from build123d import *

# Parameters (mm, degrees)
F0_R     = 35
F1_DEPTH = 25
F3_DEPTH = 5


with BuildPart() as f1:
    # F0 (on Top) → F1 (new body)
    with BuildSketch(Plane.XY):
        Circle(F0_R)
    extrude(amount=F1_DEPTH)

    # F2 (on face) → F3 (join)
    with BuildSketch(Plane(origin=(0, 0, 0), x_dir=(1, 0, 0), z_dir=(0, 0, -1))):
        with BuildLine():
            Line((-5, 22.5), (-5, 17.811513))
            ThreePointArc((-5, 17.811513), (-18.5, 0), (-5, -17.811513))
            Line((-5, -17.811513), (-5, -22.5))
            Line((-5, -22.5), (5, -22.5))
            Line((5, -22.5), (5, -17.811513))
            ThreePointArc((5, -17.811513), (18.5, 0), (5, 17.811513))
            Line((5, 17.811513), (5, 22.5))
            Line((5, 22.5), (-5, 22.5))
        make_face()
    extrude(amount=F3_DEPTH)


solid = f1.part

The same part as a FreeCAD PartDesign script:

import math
import FreeCAD as App
import Part
import Sketcher

doc = App.newDocument("Part")
body = doc.addObject("PartDesign::Body", "Body")

# Sketch on XY plane
sketch1 = body.newObject("Sketcher::SketchObject", "Sketch")
sketch1.AttachmentSupport = (doc.getObject("XY_Plane"), [""])
sketch1.MapMode = "FlatFace"
sketch1.addGeometry(Part.Circle(App.Vector(0, 0, 0), App.Vector(0, 0, 1), 35), False)
sketch1.addConstraint(Sketcher.Constraint("Coincident", 0, 3, -1, 1))
sketch1.addConstraint(Sketcher.Constraint("Diameter", 0, 70.0))
pad1 = body.newObject("PartDesign::Pad", "Pad")
pad1.Profile = sketch1
pad1.Length = 25

# Sketch on XY plane
sketch2 = body.newObject("Sketcher::SketchObject", "Sketch001")
sketch2.AttachmentSupport = (doc.getObject("XY_Plane"), [""])
sketch2.MapMode = "FlatFace"
sketch2.addGeometry(Part.LineSegment(App.Vector(-5, -22.5, 0), App.Vector(-5, -17.811513, 0)), False)
sketch2.addGeometry(Part.ArcOfCircle(Part.Circle(App.Vector(0, 0, 0), App.Vector(0, 0, 1), 18.5), math.radians(105.68035), math.radians(254.31965)), False)
sketch2.addGeometry(Part.LineSegment(App.Vector(-5, 17.811513, 0), App.Vector(-5, 22.5, 0)), False)
sketch2.addGeometry(Part.LineSegment(App.Vector(-5, 22.5, 0), App.Vector(5, 22.5, 0)), False)
sketch2.addGeometry(Part.LineSegment(App.Vector(5, 22.5, 0), App.Vector(5, 17.811513, 0)), False)
sketch2.addGeometry(Part.ArcOfCircle(Part.Circle(App.Vector(0, 0, 0), App.Vector(0, 0, 1), 18.5), math.radians(-74.31965), math.radians(74.31965)), False)
sketch2.addGeometry(Part.LineSegment(App.Vector(5, -17.811513, 0), App.Vector(5, -22.5, 0)), False)
sketch2.addGeometry(Part.LineSegment(App.Vector(5, -22.5, 0), App.Vector(-5, -22.5, 0)), False)
sketch2.addConstraint(Sketcher.Constraint("Coincident", 0, 2, 1, 2))
sketch2.addConstraint(Sketcher.Constraint("Coincident", 1, 1, 2, 1))
sketch2.addConstraint(Sketcher.Constraint("Coincident", 2, 2, 3, 1))
sketch2.addConstraint(Sketcher.Constraint("Coincident", 3, 2, 4, 1))
sketch2.addConstraint(Sketcher.Constraint("Coincident", 4, 2, 5, 2))
sketch2.addConstraint(Sketcher.Constraint("Coincident", 5, 1, 6, 1))
sketch2.addConstraint(Sketcher.Constraint("Coincident", 6, 2, 7, 1))
sketch2.addConstraint(Sketcher.Constraint("Coincident", 7, 2, 0, 1))
sketch2.addConstraint(Sketcher.Constraint("Vertical", 0))
sketch2.addConstraint(Sketcher.Constraint("Vertical", 2))
sketch2.addConstraint(Sketcher.Constraint("Horizontal", 3))
sketch2.addConstraint(Sketcher.Constraint("Vertical", 4))
sketch2.addConstraint(Sketcher.Constraint("Vertical", 6))
sketch2.addConstraint(Sketcher.Constraint("Horizontal", 7))
sketch2.addConstraint(Sketcher.Constraint("Coincident", 1, 3, -1, 1))
sketch2.addConstraint(Sketcher.Constraint("Coincident", 5, 3, -1, 1))
sketch2.addConstraint(Sketcher.Constraint("Equal", 1, 5))
sketch2.addConstraint(Sketcher.Constraint("Symmetric", 2, 2, 6, 2, -1, 1))
sketch2.addConstraint(Sketcher.Constraint("Horizontal", 1, 1, 4, 2))
sketch2.addConstraint(Sketcher.Constraint("Horizontal", 0, 2, 5, 1))
sketch2.addConstraint(Sketcher.Constraint("Radius", 1, 18.5))
sketch2.addConstraint(Sketcher.Constraint("DistanceX", 3, 1, 3, 2, 10.0))
sketch2.addConstraint(Sketcher.Constraint("DistanceY", -1, 1, 2, 2, 22.5))
pad2 = body.newObject("PartDesign::Pad", "Pad001")
pad2.Profile = sketch2
pad2.Length = 5
pad2.Reversed = True

doc.recompute()
